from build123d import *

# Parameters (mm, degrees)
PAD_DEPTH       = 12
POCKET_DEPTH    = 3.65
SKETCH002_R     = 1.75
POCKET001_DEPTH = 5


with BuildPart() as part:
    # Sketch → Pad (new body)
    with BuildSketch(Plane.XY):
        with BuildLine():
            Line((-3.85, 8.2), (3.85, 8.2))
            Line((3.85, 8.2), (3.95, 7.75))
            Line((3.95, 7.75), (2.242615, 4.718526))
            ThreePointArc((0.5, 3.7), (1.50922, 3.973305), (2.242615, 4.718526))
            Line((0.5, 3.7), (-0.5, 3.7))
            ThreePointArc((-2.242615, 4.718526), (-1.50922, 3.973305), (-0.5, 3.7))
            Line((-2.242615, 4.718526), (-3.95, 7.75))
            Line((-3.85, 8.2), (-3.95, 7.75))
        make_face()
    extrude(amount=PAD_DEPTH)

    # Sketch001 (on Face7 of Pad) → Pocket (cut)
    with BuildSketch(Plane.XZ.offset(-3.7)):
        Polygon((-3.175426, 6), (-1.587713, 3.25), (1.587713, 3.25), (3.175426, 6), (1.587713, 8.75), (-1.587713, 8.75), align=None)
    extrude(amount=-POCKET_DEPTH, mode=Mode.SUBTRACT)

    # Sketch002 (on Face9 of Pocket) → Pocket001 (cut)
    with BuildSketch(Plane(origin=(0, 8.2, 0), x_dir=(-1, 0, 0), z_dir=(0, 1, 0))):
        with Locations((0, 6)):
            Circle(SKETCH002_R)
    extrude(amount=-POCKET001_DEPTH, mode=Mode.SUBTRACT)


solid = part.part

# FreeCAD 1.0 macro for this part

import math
import FreeCAD as App
import Part
import Sketcher
from FreeCAD import Vector
Q = App.Units.Quantity

doc = App.newDocument("Part")
body = doc.addObject("PartDesign::Body", "Body")

# Sketch on XY plane
sketch1 = doc.addObject("Sketcher::SketchObject", "Sketch")
body.addObject(sketch1)
sketch1.AttachmentSupport = (doc.XY_Plane, [""])
sketch1.MapMode = "FlatFace"
sketch1.addGeometry([
    Part.LineSegment(Vector(3.85, 8.2, 0), Vector(-3.85, 8.2, 0)),  # 0
    Part.LineSegment(Vector(-3.85, 8.2, 0), Vector(-3.95, 7.75, 0)),  # 1
    Part.LineSegment(Vector(-3.95, 7.75, 0), Vector(-2.24, 4.72, 0)),  # 2
    Part.ArcOfCircle(Part.Circle(Vector(-0.5, 5.7, 0), Vector(0, 0, 1), 2), math.radians(-151), math.radians(-90)),  # 3
    Part.LineSegment(Vector(-0.5, 3.7, 0), Vector(0.5, 3.7, 0)),  # 4
    Part.ArcOfCircle(Part.Circle(Vector(0.5, 5.7, 0), Vector(0, 0, 1), 2), math.radians(-90), math.radians(-29)),  # 5
    Part.LineSegment(Vector(2.24, 4.72, 0), Vector(3.95, 7.75, 0)),  # 6
    Part.LineSegment(Vector(3.95, 7.75, 0), Vector(3.85, 8.2, 0)),  # 7
], False)
sketch1.addConstraint([
    Sketcher.Constraint("Coincident", 0, 2, 1, 1),
    Sketcher.Constraint("Coincident", 1, 2, 2, 1),
    Sketcher.Constraint("Tangent", 2, 2, 3, 1),
    Sketcher.Constraint("Tangent", 3, 2, 4, 1),
    Sketcher.Constraint("Tangent", 4, 2, 5, 1),
    Sketcher.Constraint("Tangent", 5, 2, 6, 1),
    Sketcher.Constraint("Coincident", 6, 2, 7, 1),
    Sketcher.Constraint("Coincident", 7, 2, 0, 1),
    Sketcher.Constraint("Horizontal", 0),
    Sketcher.Constraint("Horizontal", 4),
    Sketcher.Constraint("Equal", 3, 5),
    Sketcher.Constraint("Symmetric", 2, 2, 5, 2, -2),
    Sketcher.Constraint("Horizontal", 1, 2, 6, 2),
    Sketcher.Constraint("Equal", 1, 7),
    Sketcher.Constraint("DistanceX", 4, 1, 4, 2, 1.0),
    Sketcher.Constraint("DistanceX", 0, 2, 0, 1, 7.7),
    Sketcher.Constraint("DistanceY", -1, 1, 0, 2, 8.2),
    Sketcher.Constraint("DistanceY", -1, 1, 3, 2, 3.7),
    Sketcher.Constraint("DistanceX", 1, 2, 0, 2, 0.1),
    Sketcher.Constraint("DistanceY", -1, 1, 1, 2, 7.75),
    Sketcher.Constraint("Radius", 3, 1.999997),
])
pad1 = doc.addObject("PartDesign::Pad", "Pad")
body.addObject(pad1)
pad1.Profile = sketch1
pad1.Length = 12

# Sketch on XZ plane
sketch2 = doc.addObject("Sketcher::SketchObject", "Sketch001")
body.addObject(sketch2)
sketch2.AttachmentSupport = (doc.XZ_Plane, [""])
sketch2.MapMode = "FlatFace"
sketch2.AttachmentOffset = App.Placement(Vector(0, 0, -3.7), App.Rotation())
sketch2.addGeometry([
    Part.LineSegment(Vector(-3.2, 6, 0), Vector(-1.6, 3.2, 0)),  # 0
    Part.LineSegment(Vector(-1.6, 3.2, 0), Vector(1.6, 3.2, 0)),  # 1
    Part.LineSegment(Vector(1.6, 3.2, 0), Vector(3.2, 6, 0)),  # 2
    Part.LineSegment(Vector(3.2, 6, 0), Vector(1.6, 8.8, 0)),  # 3
    Part.LineSegment(Vector(1.6, 8.8, 0), Vector(-1.6, 8.8, 0)),  # 4
    Part.LineSegment(Vector(-1.6, 8.8, 0), Vector(-3.2, 6, 0)),  # 5
], False)
sketch2.addConstraint([
    Sketcher.Constraint("Coincident", 0, 2, 1, 1),
    Sketcher.Constraint("Coincident", 1, 2, 2, 1),
    Sketcher.Constraint("Coincident", 2, 2, 3, 1),
    Sketcher.Constraint("Coincident", 3, 2, 4, 1),
    Sketcher.Constraint("Coincident", 4, 2, 5, 1),
    Sketcher.Constraint("Coincident", 5, 2, 0, 1),
    Sketcher.Constraint("Horizontal", 1),
    Sketcher.Constraint("Horizontal", 4),
    Sketcher.Constraint("Symmetric", 2, 2, 5, 2, -2),
    Sketcher.Constraint("Parallel", 0, 3),
    Sketcher.Constraint("Parallel", 2, 5),
    Sketcher.Constraint("Vertical", 1, 2, 3, 2),
    Sketcher.Constraint("Vertical", 0, 2, 4, 2),
    Sketcher.Constraint("Angle", 0, Q("-60.000004 deg")),
    Sketcher.Constraint("DistanceY", -1, 1, 2, 2, 6.0),
    Sketcher.Constraint("DistanceY", 1, 2, 3, 2, 5.5),
    Sketcher.Constraint("DistanceX", 1, 1, 1, 2, 3.175426),
])
pocket1 = doc.addObject("PartDesign::Pocket", "Pocket")
body.addObject(pocket1)
pocket1.Profile = sketch2
pocket1.Length = 3.65

# Sketch on XZ plane
sketch3 = doc.addObject("Sketcher::SketchObject", "Sketch002")
body.addObject(sketch3)
sketch3.AttachmentSupport = (doc.XZ_Plane, [""])
sketch3.MapMode = "FlatFace"
sketch3.AttachmentOffset = App.Placement(Vector(0, 0, -8.2), App.Rotation())
sketch3.addGeometry(Part.Circle(Vector(0, 6, 0), Vector(0, 0, 1), 1.8), False)
sketch3.addConstraint([
    Sketcher.Constraint("PointOnObject", 0, 3, -2),
    Sketcher.Constraint("Diameter", 0, 3.5),
    Sketcher.Constraint("DistanceY", -1, 1, 0, 3, 6.0),
])
pocket2 = doc.addObject("PartDesign::Pocket", "Pocket001")
body.addObject(pocket2)
pocket2.Profile = sketch3
pocket2.Length = 5
pocket2.Reversed = True

doc.recompute()
